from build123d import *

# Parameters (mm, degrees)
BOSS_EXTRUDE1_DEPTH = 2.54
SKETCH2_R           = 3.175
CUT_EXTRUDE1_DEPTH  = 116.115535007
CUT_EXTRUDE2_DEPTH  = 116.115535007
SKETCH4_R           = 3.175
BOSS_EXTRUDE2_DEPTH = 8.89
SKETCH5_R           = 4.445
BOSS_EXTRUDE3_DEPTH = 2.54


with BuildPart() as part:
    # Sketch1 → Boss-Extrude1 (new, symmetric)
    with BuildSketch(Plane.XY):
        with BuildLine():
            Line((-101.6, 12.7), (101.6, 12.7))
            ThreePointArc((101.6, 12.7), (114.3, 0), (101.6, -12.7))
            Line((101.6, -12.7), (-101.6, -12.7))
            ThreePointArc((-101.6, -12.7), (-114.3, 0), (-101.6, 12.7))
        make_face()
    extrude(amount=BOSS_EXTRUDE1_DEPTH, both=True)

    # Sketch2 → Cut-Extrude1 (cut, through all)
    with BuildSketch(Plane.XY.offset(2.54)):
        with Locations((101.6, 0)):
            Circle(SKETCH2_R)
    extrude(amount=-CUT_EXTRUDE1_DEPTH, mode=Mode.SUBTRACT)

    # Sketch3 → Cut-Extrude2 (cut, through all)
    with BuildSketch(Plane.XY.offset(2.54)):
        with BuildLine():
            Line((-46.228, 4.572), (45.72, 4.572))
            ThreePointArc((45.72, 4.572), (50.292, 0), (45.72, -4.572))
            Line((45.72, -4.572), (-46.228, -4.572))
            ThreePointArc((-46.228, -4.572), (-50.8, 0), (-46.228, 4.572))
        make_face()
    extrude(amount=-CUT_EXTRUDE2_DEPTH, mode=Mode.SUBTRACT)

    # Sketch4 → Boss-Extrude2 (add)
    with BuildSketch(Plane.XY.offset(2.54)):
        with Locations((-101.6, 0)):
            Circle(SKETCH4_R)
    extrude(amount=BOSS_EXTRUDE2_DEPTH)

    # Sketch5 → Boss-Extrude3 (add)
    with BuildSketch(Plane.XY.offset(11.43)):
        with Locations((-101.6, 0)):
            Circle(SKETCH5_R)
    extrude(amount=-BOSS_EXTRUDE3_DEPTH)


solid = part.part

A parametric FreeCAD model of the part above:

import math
import FreeCAD as App
import Part
import Sketcher
from FreeCAD import Vector
Q = App.Units.Quantity

doc = App.newDocument("Part")
body = doc.addObject("PartDesign::Body", "Body")

sketch1 = doc.addObject("Sketcher::SketchObject", "Sketch")
body.addObject(sketch1)
sketch1.AttachmentSupport = (doc.XY_Plane, [""])
sketch1.MapMode = "FlatFace"
sketch1.addGeometry(Part.LineSegment(Vector(101.6, 12.7, 0), Vector(-101.6, 12.7, 0)), False)
sketch1.addGeometry(Part.ArcOfCircle(Part.Circle(Vector(-101.6, 0, 0), Vector(0, 0, 1), 12.7), math.radians(90), math.radians(270)), False)
sketch1.addGeometry(Part.LineSegment(Vector(-101.6, -12.7, 0), Vector(101.6, -12.7, 0)), False)
sketch1.addGeometry(Part.ArcOfCircle(Part.Circle(Vector(101.6, 0, 0), Vector(0, 0, 1), 12.7), math.radians(-90), math.radians(90)), False)
sketch1.addConstraint(Sketcher.Constraint("Tangent", 0, 2, 1, 1))
sketch1.addConstraint(Sketcher.Constraint("Tangent", 1, 2, 2, 1))
sketch1.addConstraint(Sketcher.Constraint("Tangent", 2, 2, 3, 1))
sketch1.addConstraint(Sketcher.Constraint("Tangent", 3, 2, 0, 1))
sketch1.addConstraint(Sketcher.Constraint("Horizontal", 0))
sketch1.addConstraint(Sketcher.Constraint("Horizontal", 2))
sketch1.addConstraint(Sketcher.Constraint("Symmetric", 1, 3, 3, 3, -1, 1))
sketch1.addConstraint(Sketcher.Constraint("Radius", 1, Q("0.5 in")))
sketch1.addConstraint(Sketcher.Constraint("DistanceX", 0, 2, 0, 1, Q("8 in")))
pad1 = doc.addObject("PartDesign::Pad", "Pad")
body.addObject(pad1)
pad1.Profile = sketch1
pad1.Length = Q("0.2 in")
pad1.Midplane = True

sketch2 = doc.addObject("Sketcher::SketchObject", "Sketch001")
body.addObject(sketch2)
sketch2.AttachmentSupport = (doc.XY_Plane, [""])
sketch2.MapMode = "FlatFace"
sketch2.AttachmentOffset = App.Placement(Vector(0, 0, 0.1 * 25.4), App.Rotation())
sketch2.addGeometry(Part.Circle(Vector(101.6, 0, 0), Vector(0, 0, 1), 3.175), False)
sketch2.addConstraint(Sketcher.Constraint("PointOnObject", 0, 3, -1))
sketch2.addConstraint(Sketcher.Constraint("Diameter", 0, Q("0.25 in")))
sketch2.addConstraint(Sketcher.Constraint("DistanceX", -1, 1, 0, 3, Q("4 in")))
pocket1 = doc.addObject("PartDesign::Pocket", "Pocket")
body.addObject(pocket1)
pocket1.Profile = sketch2
pocket1.Type = "ThroughAll"

sketch3 = doc.addObject("Sketcher::SketchObject", "Sketch002")
body.addObject(sketch3)
sketch3.AttachmentSupport = (doc.XY_Plane, [""])
sketch3.MapMode = "FlatFace"
sketch3.AttachmentOffset = App.Placement(Vector(0, 0, 0.1 * 25.4), App.Rotation())
sketch3.addGeometry(Part.LineSegment(Vector(45.72, 4.572, 0), Vector(-46.228, 4.572, 0)), False)
sketch3.addGeometry(Part.ArcOfCircle(Part.Circle(Vector(-46.228, 0, 0), Vector(0, 0, 1), 4.572), math.radians(90), math.radians(270)), False)
sketch3.addGeometry(Part.LineSegment(Vector(-46.228, -4.572, 0), Vector(45.72, -4.572, 0)), False)
sketch3.addGeometry(Part.ArcOfCircle(Part.Circle(Vector(45.72, 0, 0), Vector(0, 0, 1), 4.572), math.radians(-90), math.radians(90)), False)
sketch3.addConstraint(Sketcher.Constraint("Tangent", 0, 2, 1, 1))
sketch3.addConstraint(Sketcher.Constraint("Tangent", 1, 2, 2, 1))
sketch3.addConstraint(Sketcher.Constraint("Tangent", 2, 2, 3, 1))
sketch3.addConstraint(Sketcher.Constraint("Tangent", 3, 2, 0, 1))
sketch3.addConstraint(Sketcher.Constraint("Horizontal", 0))
sketch3.addConstraint(Sketcher.Constraint("Horizontal", 2))
sketch3.addConstraint(Sketcher.Constraint("PointOnObject", 1, 3, -1))
sketch3.addConstraint(Sketcher.Constraint("Radius", 1, Q("0.18 in")))
sketch3.addConstraint(Sketcher.Constraint("DistanceX", 0, 2, 0, 1, Q("3.62 in")))
sketch3.addConstraint(Sketcher.Constraint("DistanceX", -1, 1, 3, 3, Q("1.8 in")))
pocket2 = doc.addObject("PartDesign::Pocket", "Pocket001")
body.addObject(pocket2)
pocket2.Profile = sketch3
pocket2.Type = "ThroughAll"

sketch4 = doc.addObject("Sketcher::SketchObject", "Sketch003")
body.addObject(sketch4)
sketch4.AttachmentSupport = (doc.XY_Plane, [""])
sketch4.MapMode = "FlatFace"
sketch4.AttachmentOffset = App.Placement(Vector(0, 0, 0.1 * 25.4), App.Rotation())
sketch4.addGeometry(Part.Circle(Vector(-101.6, 0, 0), Vector(0, 0, 1), 3.175), False)
sketch4.addConstraint(Sketcher.Constraint("PointOnObject", 0, 3, -1))
sketch4.addConstraint(Sketcher.Constraint("Diameter", 0, Q("0.25 in")))
sketch4.addConstraint(Sketcher.Constraint("DistanceX", 0, 3, -1, 1, Q("4 in")))
pad2 = doc.addObject("PartDesign::Pad", "Pad001")
body.addObject(pad2)
pad2.Profile = sketch4
pad2.Length = Q("0.35 in")

sketch5 = doc.addObject("Sketcher::SketchObject", "Sketch004")
body.addObject(sketch5)
sketch5.AttachmentSupport = (doc.XY_Plane, [""])
sketch5.MapMode = "FlatFace"
sketch5.AttachmentOffset = App.Placement(Vector(0, 0, 0.45 * 25.4), App.Rotation())
sketch5.addGeometry(Part.Circle(Vector(-101.6, 0, 0), Vector(0, 0, 1), 4.445), False)
sketch5.addConstraint(Sketcher.Constraint("PointOnObject", 0, 3, -1))
sketch5.addConstraint(Sketcher.Constraint("Diameter", 0, Q("0.35 in")))
sketch5.addConstraint(Sketcher.Constraint("DistanceX", 0, 3, -1, 1, Q("4 in")))
pad3 = doc.addObject("PartDesign::Pad", "Pad002")
body.addObject(pad3)
pad3.Profile = sketch5
pad3.Length = Q("0.1 in")
pad3.Reversed = True

doc.recompute()
